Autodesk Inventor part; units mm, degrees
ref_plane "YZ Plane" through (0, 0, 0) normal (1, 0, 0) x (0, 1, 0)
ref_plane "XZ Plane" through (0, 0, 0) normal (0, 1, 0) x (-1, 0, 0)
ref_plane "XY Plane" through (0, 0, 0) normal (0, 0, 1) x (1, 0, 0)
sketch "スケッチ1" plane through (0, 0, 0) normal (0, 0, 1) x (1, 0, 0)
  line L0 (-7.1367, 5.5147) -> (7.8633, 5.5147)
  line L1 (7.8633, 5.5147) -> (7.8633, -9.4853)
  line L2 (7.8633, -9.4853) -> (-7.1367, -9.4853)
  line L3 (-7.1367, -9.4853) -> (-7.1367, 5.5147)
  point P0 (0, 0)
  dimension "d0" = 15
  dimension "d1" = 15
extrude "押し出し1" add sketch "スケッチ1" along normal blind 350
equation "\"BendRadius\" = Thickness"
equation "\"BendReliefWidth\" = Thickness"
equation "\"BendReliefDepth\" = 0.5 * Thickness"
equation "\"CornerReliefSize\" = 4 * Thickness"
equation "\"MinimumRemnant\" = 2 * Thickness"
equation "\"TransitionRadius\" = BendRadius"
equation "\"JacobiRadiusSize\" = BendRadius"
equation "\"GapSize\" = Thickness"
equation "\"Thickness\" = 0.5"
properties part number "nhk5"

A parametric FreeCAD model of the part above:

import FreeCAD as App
import Part
import Sketcher


def add_polygon(sketch, points):
    """Adds a closed chain of lines whose ends are joined by coincident constraints."""
    first, n = sketch.GeometryCount, len(points)
    for a, b in zip(points, points[1:] + points[:1]):
        sketch.addGeometry(Part.LineSegment(App.Vector(*a, 0), App.Vector(*b, 0)), False)
    for i in range(n):
        sketch.addConstraint(Sketcher.Constraint("Coincident", first + i, 2, first + (i + 1) % n, 1))

doc = App.newDocument("Part")
body = doc.addObject("PartDesign::Body", "Body")

# Sketch on XY plane
sketch1 = body.newObject("Sketcher::SketchObject", "Sketch")
sketch1.AttachmentSupport = (doc.getObject("XY_Plane"), [""])
sketch1.MapMode = "FlatFace"
add_polygon(sketch1, [(8, 6), (-7, 6), (-7, -9), (8, -9)])  # lines 0-3
sketch1.addConstraint([
    Sketcher.Constraint("Horizontal", 0),
    Sketcher.Constraint("Vertical", 1),
    Sketcher.Constraint("Horizontal", 2),
    Sketcher.Constraint("Vertical", 3),
    Sketcher.Constraint("Equal", 2, 1),
    Sketcher.Constraint("DistanceX", 0, 2, 0, 1, 15.0),
    Sketcher.Constraint("DistanceX", 0, 2, -1, 1, 7.1367),
    Sketcher.Constraint("DistanceY", -1, 1, 0, 2, 5.5147),
])
pad1 = body.newObject("PartDesign::Pad", "Pad")
pad1.Profile = sketch1
pad1.Length = 350

doc.recompute()
